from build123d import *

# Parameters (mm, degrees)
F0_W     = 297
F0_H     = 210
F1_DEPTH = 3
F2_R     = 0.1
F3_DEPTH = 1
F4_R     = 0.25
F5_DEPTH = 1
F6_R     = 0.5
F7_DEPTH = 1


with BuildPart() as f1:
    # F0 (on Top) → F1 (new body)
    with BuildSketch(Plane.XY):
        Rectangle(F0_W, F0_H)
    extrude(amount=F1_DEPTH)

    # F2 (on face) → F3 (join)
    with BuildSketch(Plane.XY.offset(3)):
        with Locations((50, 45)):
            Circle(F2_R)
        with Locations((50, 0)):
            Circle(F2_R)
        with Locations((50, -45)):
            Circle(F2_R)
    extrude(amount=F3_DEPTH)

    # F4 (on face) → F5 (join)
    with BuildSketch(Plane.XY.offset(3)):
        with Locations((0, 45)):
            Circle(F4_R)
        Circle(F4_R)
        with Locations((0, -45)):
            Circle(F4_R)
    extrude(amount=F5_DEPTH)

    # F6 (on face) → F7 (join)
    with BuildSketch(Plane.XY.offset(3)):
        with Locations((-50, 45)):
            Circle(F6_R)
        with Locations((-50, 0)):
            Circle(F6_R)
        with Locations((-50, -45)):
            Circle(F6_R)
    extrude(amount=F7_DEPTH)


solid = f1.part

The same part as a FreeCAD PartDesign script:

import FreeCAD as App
import Part
import Sketcher
from FreeCAD import Vector


def add_polygon(sketch, points):
    """Adds a closed chain of lines whose ends are joined by coincident constraints."""
    first, n = sketch.GeometryCount, len(points)
    for a, b in zip(points, points[1:] + points[:1]):
        sketch.addGeometry(Part.LineSegment(App.Vector(*a, 0), App.Vector(*b, 0)), False)
    for i in range(n):
        sketch.addConstraint(Sketcher.Constraint("Coincident", first + i, 2, first + (i + 1) % n, 1))

doc = App.newDocument("Part")
body = doc.addObject("PartDesign::Body", "Body")

sketch1 = doc.addObject("Sketcher::SketchObject", "Sketch")
body.addObject(sketch1)
sketch1.AttachmentSupport = (doc.XY_Plane, [""])
sketch1.MapMode = "FlatFace"
add_polygon(sketch1, [(-148, 105), (-148, -105), (148, -105), (148, 105)])
sketch1.addConstraint([
    Sketcher.Constraint("Vertical", 0),
    Sketcher.Constraint("Horizontal", 1),
    Sketcher.Constraint("Vertical", 2),
    Sketcher.Constraint("Horizontal", 3),
    Sketcher.Constraint("Symmetric", 0, 2, 2, 2, -1, 1),
    Sketcher.Constraint("DistanceX", 1, 1, 1, 2, 297.0),
    Sketcher.Constraint("DistanceY", 0, 2, 0, 1, 210.0),
])
pad1 = doc.addObject("PartDesign::Pad", "Pad")
body.addObject(pad1)
pad1.Profile = sketch1
pad1.Length = 3

sketch2 = doc.addObject("Sketcher::SketchObject", "Sketch001")
body.addObject(sketch2)
sketch2.AttachmentSupport = (doc.XY_Plane, [""])
sketch2.MapMode = "FlatFace"
sketch2.AttachmentOffset = App.Placement(Vector(0, 0, 3), App.Rotation())
sketch2.addGeometry([
    Part.Circle(Vector(50, 45, 0), Vector(0, 0, 1), 0.1),
    Part.Circle(Vector(50, 0, 0), Vector(0, 0, 1), 0.1),
    Part.Circle(Vector(50, -45, 0), Vector(0, 0, 1), 0.1),
], False)
sketch2.addConstraint([
    Sketcher.Constraint("Equal", 0, 1),
    Sketcher.Constraint("Equal", 1, 2),
    Sketcher.Constraint("Symmetric", 0, 3, 2, 3, -1),
    Sketcher.Constraint("PointOnObject", 1, 3, -1),
    Sketcher.Constraint("Vertical", 0, 3, 1, 3),
    Sketcher.Constraint("Diameter", 0, 0.2),
    Sketcher.Constraint("DistanceX", -1, 1, 0, 3, 50.0),
    Sketcher.Constraint("DistanceY", -1, 1, 0, 3, 45.0),
])
pad2 = doc.addObject("PartDesign::Pad", "Pad001")
body.addObject(pad2)
pad2.Profile = sketch2
pad2.Length = 1

sketch3 = doc.addObject("Sketcher::SketchObject", "Sketch002")
body.addObject(sketch3)
sketch3.AttachmentSupport = (doc.XY_Plane, [""])
sketch3.MapMode = "FlatFace"
sketch3.AttachmentOffset = App.Placement(Vector(0, 0, 3), App.Rotation())
sketch3.addGeometry([
    Part.Circle(Vector(0, 45, 0), Vector(0, 0, 1), 0.25),
    Part.Circle(Vector(0, 0, 0), Vector(0, 0, 1), 0.25),
    Part.Circle(Vector(0, -45, 0), Vector(0, 0, 1), 0.25),
], False)
sketch3.addConstraint([
    Sketcher.Constraint("Coincident", 1, 3, -1, 1),
    Sketcher.Constraint("Equal", 0, 1),
    Sketcher.Constraint("Equal", 1, 2),
    Sketcher.Constraint("Symmetric", 0, 3, 2, 3, -1, 1),
    Sketcher.Constraint("PointOnObject", 0, 3, -2),
    Sketcher.Constraint("Diameter", 0, 0.5),
    Sketcher.Constraint("DistanceY", -1, 1, 0, 3, 45.0),
])
pad3 = doc.addObject("PartDesign::Pad", "Pad002")
body.addObject(pad3)
pad3.Profile = sketch3
pad3.Length = 1

sketch4 = doc.addObject("Sketcher::SketchObject", "Sketch003")
body.addObject(sketch4)
sketch4.AttachmentSupport = (doc.XY_Plane, [""])
sketch4.MapMode = "FlatFace"
sketch4.AttachmentOffset = App.Placement(Vector(0, 0, 3), App.Rotation())
sketch4.addGeometry([
    Part.Circle(Vector(-50, 45, 0), Vector(0, 0, 1), 0.5),
    Part.Circle(Vector(-50, 0, 0), Vector(0, 0, 1), 0.5),
    Part.Circle(Vector(-50, -45, 0), Vector(0, 0, 1), 0.5),
], False)
sketch4.addConstraint([
    Sketcher.Constraint("Equal", 0, 1),
    Sketcher.Constraint("Equal", 1, 2),
    Sketcher.Constraint("Symmetric", 0, 3, 2, 3, -1),
    Sketcher.Constraint("PointOnObject", 1, 3, -1),
    Sketcher.Constraint("Vertical", 0, 3, 1, 3),
    Sketcher.Constraint("Diameter", 0, 1.0),
    Sketcher.Constraint("DistanceX", 0, 3, -1, 1, 50.0),
    Sketcher.Constraint("DistanceY", -1, 1, 0, 3, 45.0),
])
pad4 = doc.addObject("PartDesign::Pad", "Pad003")
body.addObject(pad4)
pad4.Profile = sketch4
pad4.Length = 1

doc.recompute()
